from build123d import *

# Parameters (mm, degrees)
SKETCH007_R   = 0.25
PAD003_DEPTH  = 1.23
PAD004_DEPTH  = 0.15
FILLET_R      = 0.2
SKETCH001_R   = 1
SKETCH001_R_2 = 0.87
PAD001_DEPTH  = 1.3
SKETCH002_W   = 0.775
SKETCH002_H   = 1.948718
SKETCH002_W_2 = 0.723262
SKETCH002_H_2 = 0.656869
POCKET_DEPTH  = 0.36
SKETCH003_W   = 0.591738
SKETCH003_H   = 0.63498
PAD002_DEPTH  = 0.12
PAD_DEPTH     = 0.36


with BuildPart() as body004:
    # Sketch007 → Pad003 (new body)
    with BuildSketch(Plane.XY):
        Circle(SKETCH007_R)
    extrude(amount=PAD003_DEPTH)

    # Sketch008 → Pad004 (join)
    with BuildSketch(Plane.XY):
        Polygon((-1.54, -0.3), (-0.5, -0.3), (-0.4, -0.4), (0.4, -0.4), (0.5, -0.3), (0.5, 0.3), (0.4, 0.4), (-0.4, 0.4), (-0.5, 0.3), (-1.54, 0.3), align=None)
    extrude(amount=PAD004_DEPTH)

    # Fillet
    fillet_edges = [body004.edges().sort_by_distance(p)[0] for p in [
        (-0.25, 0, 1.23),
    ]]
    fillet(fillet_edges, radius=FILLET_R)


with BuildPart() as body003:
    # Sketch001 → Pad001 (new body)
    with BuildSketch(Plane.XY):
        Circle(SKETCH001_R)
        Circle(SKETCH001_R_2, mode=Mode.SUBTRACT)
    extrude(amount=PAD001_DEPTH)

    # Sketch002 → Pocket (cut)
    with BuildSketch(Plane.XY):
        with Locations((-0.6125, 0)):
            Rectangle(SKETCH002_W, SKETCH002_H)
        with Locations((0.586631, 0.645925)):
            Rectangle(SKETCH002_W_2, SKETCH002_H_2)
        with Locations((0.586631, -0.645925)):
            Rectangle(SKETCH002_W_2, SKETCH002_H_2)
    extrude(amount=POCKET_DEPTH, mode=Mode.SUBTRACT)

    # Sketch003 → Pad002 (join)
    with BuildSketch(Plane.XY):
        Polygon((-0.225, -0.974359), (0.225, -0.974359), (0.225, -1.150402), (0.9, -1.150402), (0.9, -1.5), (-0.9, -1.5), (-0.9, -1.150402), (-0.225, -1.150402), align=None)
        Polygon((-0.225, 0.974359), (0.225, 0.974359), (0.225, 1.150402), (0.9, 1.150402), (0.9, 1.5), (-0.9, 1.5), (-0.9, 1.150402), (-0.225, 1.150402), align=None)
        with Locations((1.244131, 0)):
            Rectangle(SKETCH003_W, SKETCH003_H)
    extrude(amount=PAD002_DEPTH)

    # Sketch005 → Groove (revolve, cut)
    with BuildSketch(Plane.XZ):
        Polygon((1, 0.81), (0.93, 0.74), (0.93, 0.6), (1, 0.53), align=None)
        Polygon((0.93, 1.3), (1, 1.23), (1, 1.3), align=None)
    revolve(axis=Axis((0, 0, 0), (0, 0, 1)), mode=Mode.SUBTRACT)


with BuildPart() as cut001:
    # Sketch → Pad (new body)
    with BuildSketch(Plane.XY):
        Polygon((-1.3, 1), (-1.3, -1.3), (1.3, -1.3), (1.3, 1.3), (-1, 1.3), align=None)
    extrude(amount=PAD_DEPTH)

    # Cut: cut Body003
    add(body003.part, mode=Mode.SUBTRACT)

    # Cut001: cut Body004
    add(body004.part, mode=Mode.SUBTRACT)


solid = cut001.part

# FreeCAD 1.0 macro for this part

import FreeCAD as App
import Part
import Sketcher

V = App.Vector


def edges_at(feature, points):
    """Names of the edges that pass closest to the given points."""
    edges = feature.Shape.Edges
    near = lambda p: min(range(len(edges)), key=lambda i: edges[i].distToShape(Part.Vertex(*p))[0])
    return sorted({f"Edge{near(p) + 1}" for p in points})


def add_polygon(sketch, points):
    """Adds a closed chain of lines whose ends are joined by coincident constraints."""
    first, n = sketch.GeometryCount, len(points)
    for a, b in zip(points, points[1:] + points[:1]):
        sketch.addGeometry(Part.LineSegment(App.Vector(*a, 0), App.Vector(*b, 0)), False)
    for i in range(n):
        sketch.addConstraint(Sketcher.Constraint("Coincident", first + i, 2, first + (i + 1) % n, 1))

doc = App.newDocument("Part")
body = doc.addObject("PartDesign::Body", "Body")

sketch1 = body.newObject("Sketcher::SketchObject", "Sketch")
sketch1.AttachmentSupport = (doc.getObject("XY_Plane"), [""])
sketch1.MapMode = "FlatFace"
sketch1.addGeometry(Part.Circle(V(0, 0, 0), V(0, 0, 1), 0.25), False)
sketch1.addConstraint([
    Sketcher.Constraint("Coincident", 0, 3, -1, 1),
    Sketcher.Constraint("Diameter", 0, 0.5),
])
pad1 = body.newObject("PartDesign::Pad", "Pad")
pad1.Profile = sketch1
pad1.Length = 1.23

sketch2 = body.newObject("Sketcher::SketchObject", "Sketch001")
sketch2.AttachmentSupport = (doc.getObject("XY_Plane"), [""])
sketch2.MapMode = "FlatFace"
add_polygon(sketch2, [(-1.54, -0.3), (-0.5, -0.3), (-0.4, -0.4), (0.4, -0.4), (0.5, -0.3), (0.5, 0.3), (0.4, 0.4), (-0.4, 0.4), (-0.5, 0.3), (-1.54, 0.3)])
sketch2.addConstraint([
    Sketcher.Constraint("Horizontal", 0),
    Sketcher.Constraint("Horizontal", 2),
    Sketcher.Constraint("Vertical", 4),
    Sketcher.Constraint("Horizontal", 6),
    Sketcher.Constraint("Horizontal", 8),
    Sketcher.Constraint("Vertical", 9),
    Sketcher.Constraint("Symmetric", 0, 2, 4, 2, -1, 1),
    Sketcher.Constraint("Symmetric", 1, 2, 5, 2, -1, 1),
    Sketcher.Constraint("Symmetric", 3, 2, 7, 2, -1, 1),
    Sketcher.Constraint("Perpendicular", 1, 3),
    Sketcher.Constraint("Perpendicular", 5, 7),
    Sketcher.Constraint("Horizontal", 0, 2, 3, 2),
    Sketcher.Constraint("Vertical", 2, 2, 5, 2),
    Sketcher.Constraint("DistanceX", 2, 1, 2, 2, 0.8),
    Sketcher.Constraint("DistanceY", 4, 1, 4, 2, 0.6),
    Sketcher.Constraint("DistanceX", 0, 2, 3, 2, 1.0),
    Sketcher.Constraint("DistanceX", 0, 1, 0, 2, 1.04),
])
pad2 = body.newObject("PartDesign::Pad", "Pad001")
pad2.Profile = sketch2
pad2.Length = 0.15
doc.recompute()

fillet = body.newObject("PartDesign::Fillet", "Fillet")
fillet.Base = (pad2, edges_at(pad2, [(-0.25, 0, 1.23)]))
fillet.Radius = 0.2
body2 = doc.addObject("PartDesign::Body", "Body001")

sketch3 = body2.newObject("Sketcher::SketchObject", "Sketch002")
sketch3.AttachmentSupport = (doc.getObject("XY_Plane001"), [""])
sketch3.MapMode = "FlatFace"
sketch3.addGeometry([
    Part.Circle(V(0, 0, 0), V(0, 0, 1), 1),
    Part.Circle(V(0, 0, 0), V(0, 0, 1), 0.87),
], False)
sketch3.addConstraint([
    Sketcher.Constraint("Coincident", 0, 3, -1, 1),
    Sketcher.Constraint("Coincident", 1, 3, -1, 1),
    Sketcher.Constraint("Diameter", 0, 2.0),
    Sketcher.Constraint("Diameter", 1, 1.74),
])
pad3 = body2.newObject("PartDesign::Pad", "Pad002")
pad3.Profile = sketch3
pad3.Length = 1.3

sketch4 = body2.newObject("Sketcher::SketchObject", "Sketch003")
sketch4.AttachmentSupport = (doc.getObject("XY_Plane001"), [""])
sketch4.MapMode = "FlatFace"
add_polygon(sketch4, [(-1, 0.974359), (-1, -0.974359), (-0.225, -0.974359), (-0.225, 0.974359)])
add_polygon(sketch4, [(0.225, 0.97436), (0.225, 0.317491), (0.948262, 0.317491), (0.948262, 0.97436)])
add_polygon(sketch4, [(0.225, -0.317491), (0.225, -0.97436), (0.948262, -0.97436), (0.948262, -0.317491)])
sketch4.addConstraint([
    Sketcher.Constraint("Vertical", 0),
    Sketcher.Constraint("Horizontal", 1),
    Sketcher.Constraint("Vertical", 2),
    Sketcher.Constraint("Horizontal", 3),
    Sketcher.Constraint("Vertical", 4),
    Sketcher.Constraint("Horizontal", 5),
    Sketcher.Constraint("Vertical", 6),
    Sketcher.Constraint("Horizontal", 7),
    Sketcher.Constraint("Vertical", 8),
    Sketcher.Constraint("Horizontal", 9),
    Sketcher.Constraint("Vertical", 10),
    Sketcher.Constraint("Horizontal", 11),
    Sketcher.Constraint("Symmetric", 1, 2, 7, 2, -1, 1),
    Sketcher.Constraint("Symmetric", 2, 2, 8, 2, -1, 1),
    Sketcher.Constraint("Symmetric", 6, 2, 9, 2, -1),
    Sketcher.Constraint("Equal", 6, 8),
    Sketcher.Constraint("DistanceX", 0, 2, -1, 1, 1.0),
    Sketcher.Constraint("DistanceX", 1, 1, 1, 2, 0.775),
    Sketcher.Constraint("DistanceY", 4, 2, 4, 1, 0.656869),
    Sketcher.Constraint("DistanceX", 5, 1, 5, 2, 0.723262),
    Sketcher.Constraint("DistanceY", 0, 2, 0, 1, 1.948718),
])
pocket1 = body2.newObject("PartDesign::Pocket", "Pocket")
pocket1.Profile = sketch4
pocket1.Length = 0.36
pocket1.Reversed = True

sketch5 = body2.newObject("Sketcher::SketchObject", "Sketch004")
sketch5.AttachmentSupport = (doc.getObject("XY_Plane001"), [""])
sketch5.MapMode = "FlatFace"
add_polygon(sketch5, [(0.225, -0.974359), (-0.225, -0.974359), (-0.225, -1.150402), (-0.9, -1.150402), (-0.9, -1.5), (0.9, -1.5), (0.9, -1.150402), (0.225, -1.150402)])
add_polygon(sketch5, [(-0.225, 0.974359), (0.225, 0.974359), (0.225, 1.150402), (0.9, 1.150402), (0.9, 1.5), (-0.9, 1.5), (-0.9, 1.150402), (-0.225, 1.150402)])
add_polygon(sketch5, [(0.948262, 0.31749), (0.948262, -0.31749), (1.54, -0.31749), (1.54, 0.31749)])
sketch5.addConstraint([
    Sketcher.Constraint("Horizontal", 0),
    Sketcher.Constraint("Vertical", 1),
    Sketcher.Constraint("Horizontal", 2),
    Sketcher.Constraint("Vertical", 3),
    Sketcher.Constraint("Horizontal", 4),
    Sketcher.Constraint("Vertical", 5),
    Sketcher.Constraint("Horizontal", 6),
    Sketcher.Constraint("Vertical", 7),
    Sketcher.Constraint("Horizontal", 8),
    Sketcher.Constraint("Vertical", 9),
    Sketcher.Constraint("Horizontal", 10),
    Sketcher.Constraint("Vertical", 11),
    Sketcher.Constraint("Horizontal", 12),
    Sketcher.Constraint("Vertical", 13),
    Sketcher.Constraint("Horizontal", 14),
    Sketcher.Constraint("Vertical", 15),
    Sketcher.Constraint("Vertical", 16),
    Sketcher.Constraint("Horizontal", 17),
    Sketcher.Constraint("Vertical", 18),
    Sketcher.Constraint("Horizontal", 19),
    Sketcher.Constraint("Symmetric", 0, 2, 8, 2, -1, 1),
    Sketcher.Constraint("Symmetric", 2, 2, 10, 2, -1, 1),
    Sketcher.Constraint("Symmetric", 4, 2, 12, 2, -1, 1),
    Sketcher.Constraint("Symmetric", 6, 2, 14, 2, -1, 1),
    Sketcher.Constraint("Symmetric", 2, 2, 5, 2, -2),
    Sketcher.Constraint("Vertical", 7, 2, 8, 2),
    Sketcher.Constraint("DistanceX", 4, 1, 4, 2, 1.8),
    Sketcher.Constraint("DistanceX", 0, 2, 0, 1, 0.45),
    Sketcher.Constraint("DistanceY", 3, 2, -1, 1, 1.5),
    Sketcher.Constraint("DistanceX", -1, 1, 17, 2, 1.54),
    Sketcher.Constraint("DistanceY", 3, 2, 3, 1, 0.349598),
    Sketcher.Constraint("DistanceY", 16, 2, 16, 1, 0.63498),
    Sketcher.Constraint("DistanceX", 17, 1, 17, 2, 0.591738),
    Sketcher.Constraint("DistanceY", 1, 2, 1, 1, 0.176043),
    Sketcher.Constraint("DistanceY", 16, 2, -1, 1, 0.31749),
])
pad4 = body2.newObject("PartDesign::Pad", "Pad003")
pad4.Profile = sketch5
pad4.Length = 0.12

sketch6 = body2.newObject("Sketcher::SketchObject", "Sketch005")
sketch6.AttachmentSupport = (doc.getObject("XZ_Plane001"), [""])
sketch6.MapMode = "FlatFace"
add_polygon(sketch6, [(1, 0.81), (0.93, 0.74), (0.93, 0.6), (1, 0.53)])
add_polygon(sketch6, [(0.93, 1.3), (1, 1.23), (1, 1.3)])
sketch6.addConstraint([
    Sketcher.Constraint("Vertical", 1),
    Sketcher.Constraint("Vertical", 3),
    Sketcher.Constraint("Vertical", 5),
    Sketcher.Constraint("Horizontal", 6),
    Sketcher.Constraint("Perpendicular", 0, 2),
    Sketcher.Constraint("Parallel", 2, 4),
    Sketcher.Constraint("Vertical", 3, 2, 4, 2),
    Sketcher.Constraint("Vertical", 1, 2, 6, 2),
    Sketcher.Constraint("Equal", 6, 5),
    Sketcher.Constraint("DistanceX", -1, 1, 2, 2, 1.0),
    Sketcher.Constraint("DistanceX", 6, 2, 6, 1, 0.07),
    Sketcher.Constraint("DistanceY", 1, 2, 1, 1, 0.14),
    Sketcher.Constraint("DistanceY", -1, 1, 1, 2, 0.6),
    Sketcher.Constraint("DistanceY", -1, 1, 5, 2, 1.3),
])
groove = body2.newObject("PartDesign::Groove", "Groove")
groove.Profile = sketch6
groove.ReferenceAxis = (sketch6, ["V_Axis"])
groove.Angle = 360
body3 = doc.addObject("PartDesign::Body", "Body002")

sketch7 = body3.newObject("Sketcher::SketchObject", "Sketch006")
sketch7.AttachmentSupport = (doc.getObject("XY_Plane002"), [""])
sketch7.MapMode = "FlatFace"
add_polygon(sketch7, [(-1.3, 1), (-1.3, -1.3), (1.3, -1.3), (1.3, 1.3), (-1, 1.3)])
sketch7.addConstraint([
    Sketcher.Constraint("Vertical", 0),
    Sketcher.Constraint("Horizontal", 1),
    Sketcher.Constraint("Vertical", 2),
    Sketcher.Constraint("Horizontal", 3),
    Sketcher.Constraint("Symmetric", 0, 2, 2, 2, -1, 1),
    Sketcher.Constraint("Equal", 3, 0),
    Sketcher.Constraint("Equal", 1, 2),
    Sketcher.Constraint("DistanceX", 1, 1, 1, 2, 2.6),
    Sketcher.Constraint("DistanceX", 3, 2, 3, 1, 2.3),
])
pad5 = body3.newObject("PartDesign::Pad", "Pad004")
pad5.Profile = sketch7
pad5.Length = 0.36
doc.recompute()

boolean = body3.newObject("PartDesign::Boolean", "Boolean")
boolean.Type = "Cut"
boolean.addObjects([body2])
doc.recompute()

boolean2 = body3.newObject("PartDesign::Boolean", "Boolean001")
boolean2.Type = "Cut"
boolean2.addObjects([body])

doc.recompute()
